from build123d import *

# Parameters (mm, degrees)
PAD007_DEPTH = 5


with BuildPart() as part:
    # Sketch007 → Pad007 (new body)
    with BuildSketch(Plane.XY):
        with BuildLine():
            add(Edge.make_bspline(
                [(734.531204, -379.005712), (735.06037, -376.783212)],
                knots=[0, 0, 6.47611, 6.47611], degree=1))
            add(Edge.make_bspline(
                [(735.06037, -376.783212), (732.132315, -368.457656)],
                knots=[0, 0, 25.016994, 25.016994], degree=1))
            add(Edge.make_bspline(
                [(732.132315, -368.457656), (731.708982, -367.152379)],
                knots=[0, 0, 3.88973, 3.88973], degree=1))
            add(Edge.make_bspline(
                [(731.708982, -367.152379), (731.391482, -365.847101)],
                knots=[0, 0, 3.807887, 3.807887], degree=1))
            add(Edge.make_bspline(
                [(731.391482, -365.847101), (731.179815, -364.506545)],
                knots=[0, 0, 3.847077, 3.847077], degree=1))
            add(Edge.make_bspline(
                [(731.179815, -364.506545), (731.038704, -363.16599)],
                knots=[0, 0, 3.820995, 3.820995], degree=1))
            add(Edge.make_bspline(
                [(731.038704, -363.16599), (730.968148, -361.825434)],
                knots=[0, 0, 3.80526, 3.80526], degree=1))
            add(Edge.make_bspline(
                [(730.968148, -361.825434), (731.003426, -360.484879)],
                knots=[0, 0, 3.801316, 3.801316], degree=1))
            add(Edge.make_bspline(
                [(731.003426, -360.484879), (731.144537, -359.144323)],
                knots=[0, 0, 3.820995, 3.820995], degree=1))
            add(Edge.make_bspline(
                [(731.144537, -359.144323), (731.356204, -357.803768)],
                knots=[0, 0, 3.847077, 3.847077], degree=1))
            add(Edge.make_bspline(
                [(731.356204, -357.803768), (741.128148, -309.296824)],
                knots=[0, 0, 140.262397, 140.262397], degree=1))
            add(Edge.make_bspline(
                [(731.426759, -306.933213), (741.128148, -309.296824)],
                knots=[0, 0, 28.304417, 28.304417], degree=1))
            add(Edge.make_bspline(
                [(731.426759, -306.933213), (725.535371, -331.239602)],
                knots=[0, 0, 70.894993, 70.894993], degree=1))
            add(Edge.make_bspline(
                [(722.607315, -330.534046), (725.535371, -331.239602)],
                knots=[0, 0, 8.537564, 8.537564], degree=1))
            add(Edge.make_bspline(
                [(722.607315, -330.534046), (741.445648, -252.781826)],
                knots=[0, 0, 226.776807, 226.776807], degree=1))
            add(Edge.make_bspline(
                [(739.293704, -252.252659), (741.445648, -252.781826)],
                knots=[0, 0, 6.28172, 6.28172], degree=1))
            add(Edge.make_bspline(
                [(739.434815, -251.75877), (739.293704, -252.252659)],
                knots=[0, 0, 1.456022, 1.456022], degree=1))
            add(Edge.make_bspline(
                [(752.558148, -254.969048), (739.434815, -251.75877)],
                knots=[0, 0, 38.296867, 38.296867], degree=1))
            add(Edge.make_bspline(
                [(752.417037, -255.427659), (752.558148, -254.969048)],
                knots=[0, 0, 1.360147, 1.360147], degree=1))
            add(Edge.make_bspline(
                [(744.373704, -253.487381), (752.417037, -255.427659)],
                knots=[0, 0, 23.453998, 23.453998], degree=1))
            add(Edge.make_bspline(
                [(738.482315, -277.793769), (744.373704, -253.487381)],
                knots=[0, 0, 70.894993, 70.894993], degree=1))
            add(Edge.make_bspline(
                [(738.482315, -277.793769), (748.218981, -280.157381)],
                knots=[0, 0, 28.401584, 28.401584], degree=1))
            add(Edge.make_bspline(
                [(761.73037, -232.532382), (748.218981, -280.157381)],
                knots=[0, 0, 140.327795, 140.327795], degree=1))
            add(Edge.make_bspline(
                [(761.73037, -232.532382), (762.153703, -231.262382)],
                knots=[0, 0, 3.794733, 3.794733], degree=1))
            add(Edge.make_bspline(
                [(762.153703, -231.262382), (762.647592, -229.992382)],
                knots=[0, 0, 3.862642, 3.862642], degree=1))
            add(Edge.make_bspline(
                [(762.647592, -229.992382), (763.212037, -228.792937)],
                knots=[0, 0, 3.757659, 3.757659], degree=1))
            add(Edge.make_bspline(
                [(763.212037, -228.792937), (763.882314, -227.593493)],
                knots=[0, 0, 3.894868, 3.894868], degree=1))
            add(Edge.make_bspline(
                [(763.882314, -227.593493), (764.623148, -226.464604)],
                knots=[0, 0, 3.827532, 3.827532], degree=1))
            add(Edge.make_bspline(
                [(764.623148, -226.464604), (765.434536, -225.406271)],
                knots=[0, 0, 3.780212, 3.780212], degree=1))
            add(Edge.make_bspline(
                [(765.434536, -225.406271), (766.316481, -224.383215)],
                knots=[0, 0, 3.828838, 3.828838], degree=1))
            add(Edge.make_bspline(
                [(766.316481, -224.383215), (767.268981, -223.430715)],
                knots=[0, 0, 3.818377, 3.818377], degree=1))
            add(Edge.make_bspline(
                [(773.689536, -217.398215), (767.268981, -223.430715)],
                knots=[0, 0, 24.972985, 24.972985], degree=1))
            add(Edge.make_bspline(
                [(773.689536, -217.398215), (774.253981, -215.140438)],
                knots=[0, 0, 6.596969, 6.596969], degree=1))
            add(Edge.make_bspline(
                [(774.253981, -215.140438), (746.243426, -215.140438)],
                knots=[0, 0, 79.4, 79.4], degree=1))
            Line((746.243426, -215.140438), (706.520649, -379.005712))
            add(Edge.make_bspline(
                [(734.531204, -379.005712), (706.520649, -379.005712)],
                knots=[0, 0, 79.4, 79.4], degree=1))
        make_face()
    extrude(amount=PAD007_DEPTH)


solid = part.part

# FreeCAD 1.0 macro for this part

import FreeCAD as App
import Part
import Sketcher

doc = App.newDocument("Part")
body = doc.addObject("PartDesign::Body", "Body")

# Sketch on XY plane
sketch1 = body.newObject("Sketcher::SketchObject", "Sketch")
sketch1.AttachmentSupport = (doc.getObject("XY_Plane"), [""])
sketch1.MapMode = "FlatFace"
sketch1.addGeometry(Part.BSplineCurve([App.Vector(734.531204, -379.005712, 0), App.Vector(735.06037, -376.783212, 0)], [2, 2], [0, 6.47611], False, 1, [1, 1], False), False)
sketch1.addGeometry(Part.BSplineCurve([App.Vector(735.06037, -376.783212, 0), App.Vector(732.132315, -368.457656, 0)], [2, 2], [0, 25.016994], False, 1, [1, 1], False), False)
sketch1.addGeometry(Part.BSplineCurve([App.Vector(732.132315, -368.457656, 0), App.Vector(731.708982, -367.152379, 0)], [2, 2], [0, 3.88973], False, 1, [1, 1], False), False)
sketch1.addGeometry(Part.BSplineCurve([App.Vector(731.708982, -367.152379, 0), App.Vector(731.391482, -365.847101, 0)], [2, 2], [0, 3.807887], False, 1, [1, 1], False), False)
sketch1.addGeometry(Part.BSplineCurve([App.Vector(731.391482, -365.847101, 0), App.Vector(731.179815, -364.506545, 0)], [2, 2], [0, 3.847077], False, 1, [1, 1], False), False)
sketch1.addGeometry(Part.BSplineCurve([App.Vector(731.179815, -364.506545, 0), App.Vector(731.038704, -363.16599, 0)], [2, 2], [0, 3.820995], False, 1, [1, 1], False), False)
sketch1.addGeometry(Part.BSplineCurve([App.Vector(731.038704, -363.16599, 0), App.Vector(730.968148, -361.825434, 0)], [2, 2], [0, 3.80526], False, 1, [1, 1], False), False)
sketch1.addGeometry(Part.BSplineCurve([App.Vector(730.968148, -361.825434, 0), App.Vector(731.003426, -360.484879, 0)], [2, 2], [0, 3.801316], False, 1, [1, 1], False), False)
sketch1.addGeometry(Part.BSplineCurve([App.Vector(731.003426, -360.484879, 0), App.Vector(731.144537, -359.144323, 0)], [2, 2], [0, 3.820995], False, 1, [1, 1], False), False)
sketch1.addGeometry(Part.BSplineCurve([App.Vector(731.144537, -359.144323, 0), App.Vector(731.356204, -357.803768, 0)], [2, 2], [0, 3.847077], False, 1, [1, 1], False), False)
sketch1.addGeometry(Part.BSplineCurve([App.Vector(731.356204, -357.803768, 0), App.Vector(741.128148, -309.296824, 0)], [2, 2], [0, 140.262397], False, 1, [1, 1], False), False)
sketch1.addGeometry(Part.BSplineCurve([App.Vector(731.426759, -306.933213, 0), App.Vector(741.128148, -309.296824, 0)], [2, 2], [0, 28.304417], False, 1, [1, 1], False), False)
sketch1.addGeometry(Part.BSplineCurve([App.Vector(731.426759, -306.933213, 0), App.Vector(725.535371, -331.239602, 0)], [2, 2], [0, 70.894993], False, 1, [1, 1], False), False)
sketch1.addGeometry(Part.BSplineCurve([App.Vector(722.607315, -330.534046, 0), App.Vector(725.535371, -331.239602, 0)], [2, 2], [0, 8.537564], False, 1, [1, 1], False), False)
sketch1.addGeometry(Part.BSplineCurve([App.Vector(722.607315, -330.534046, 0), App.Vector(741.445648, -252.781826, 0)], [2, 2], [0, 226.776807], False, 1, [1, 1], False), False)
sketch1.addGeometry(Part.BSplineCurve([App.Vector(739.293704, -252.252659, 0), App.Vector(741.445648, -252.781826, 0)], [2, 2], [0, 6.28172], False, 1, [1, 1], False), False)
sketch1.addGeometry(Part.BSplineCurve([App.Vector(739.434815, -251.75877, 0), App.Vector(739.293704, -252.252659, 0)], [2, 2], [0, 1.456022], False, 1, [1, 1], False), False)
sketch1.addGeometry(Part.BSplineCurve([App.Vector(752.558148, -254.969048, 0), App.Vector(739.434815, -251.75877, 0)], [2, 2], [0, 38.296867], False, 1, [1, 1], False), False)
sketch1.addGeometry(Part.BSplineCurve([App.Vector(752.417037, -255.427659, 0), App.Vector(752.558148, -254.969048, 0)], [2, 2], [0, 1.360147], False, 1, [1, 1], False), False)
sketch1.addGeometry(Part.BSplineCurve([App.Vector(744.373704, -253.487381, 0), App.Vector(752.417037, -255.427659, 0)], [2, 2], [0, 23.453998], False, 1, [1, 1], False), False)
sketch1.addGeometry(Part.BSplineCurve([App.Vector(738.482315, -277.793769, 0), App.Vector(744.373704, -253.487381, 0)], [2, 2], [0, 70.894993], False, 1, [1, 1], False), False)
sketch1.addGeometry(Part.BSplineCurve([App.Vector(738.482315, -277.793769, 0), App.Vector(748.218981, -280.157381, 0)], [2, 2], [0, 28.401584], False, 1, [1, 1], False), False)
sketch1.addGeometry(Part.BSplineCurve([App.Vector(761.73037, -232.532382, 0), App.Vector(748.218981, -280.157381, 0)], [2, 2], [0, 140.327795], False, 1, [1, 1], False), False)
sketch1.addGeometry(Part.BSplineCurve([App.Vector(761.73037, -232.532382, 0), App.Vector(762.153703, -231.262382, 0)], [2, 2], [0, 3.794733], False, 1, [1, 1], False), False)
sketch1.addGeometry(Part.BSplineCurve([App.Vector(762.153703, -231.262382, 0), App.Vector(762.647592, -229.992382, 0)], [2, 2], [0, 3.862642], False, 1, [1, 1], False), False)
sketch1.addGeometry(Part.BSplineCurve([App.Vector(762.647592, -229.992382, 0), App.Vector(763.212037, -228.792937, 0)], [2, 2], [0, 3.757659], False, 1, [1, 1], False), False)
sketch1.addGeometry(Part.BSplineCurve([App.Vector(763.212037, -228.792937, 0), App.Vector(763.882314, -227.593493, 0)], [2, 2], [0, 3.894868], False, 1, [1, 1], False), False)
sketch1.addGeometry(Part.BSplineCurve([App.Vector(763.882314, -227.593493, 0), App.Vector(764.623148, -226.464604, 0)], [2, 2], [0, 3.827532], False, 1, [1, 1], False), False)
sketch1.addGeometry(Part.BSplineCurve([App.Vector(764.623148, -226.464604, 0), App.Vector(765.434536, -225.406271, 0)], [2, 2], [0, 3.780212], False, 1, [1, 1], False), False)
sketch1.addGeometry(Part.BSplineCurve([App.Vector(765.434536, -225.406271, 0), App.Vector(766.316481, -224.383215, 0)], [2, 2], [0, 3.828838], False, 1, [1, 1], False), False)
sketch1.addGeometry(Part.BSplineCurve([App.Vector(766.316481, -224.383215, 0), App.Vector(767.268981, -223.430715, 0)], [2, 2], [0, 3.818377], False, 1, [1, 1], False), False)
sketch1.addGeometry(Part.BSplineCurve([App.Vector(773.689536, -217.398215, 0), App.Vector(767.268981, -223.430715, 0)], [2, 2], [0, 24.972985], False, 1, [1, 1], False), False)
sketch1.addGeometry(Part.BSplineCurve([App.Vector(773.689536, -217.398215, 0), App.Vector(774.253981, -215.140438, 0)], [2, 2], [0, 6.596969], False, 1, [1, 1], False), False)
sketch1.addGeometry(Part.BSplineCurve([App.Vector(774.253981, -215.140438, 0), App.Vector(746.243426, -215.140438, 0)], [2, 2], [0, 79.4], False, 1, [1, 1], False), False)
sketch1.addGeometry(Part.LineSegment(App.Vector(746.243426, -215.140438, 0), App.Vector(706.520649, -379.005712, 0)), False)
sketch1.addGeometry(Part.BSplineCurve([App.Vector(734.531204, -379.005712, 0), App.Vector(706.520649, -379.005712, 0)], [2, 2], [0, 79.4], False, 1, [1, 1], False), False)
sketch1.addConstraint(Sketcher.Constraint("Block", 0))
sketch1.addConstraint(Sketcher.Constraint("Block", 1))
sketch1.addConstraint(Sketcher.Constraint("Block", 2))
sketch1.addConstraint(Sketcher.Constraint("Block", 3))
sketch1.addConstraint(Sketcher.Constraint("Block", 4))
sketch1.addConstraint(Sketcher.Constraint("Block", 5))
sketch1.addConstraint(Sketcher.Constraint("Block", 6))
sketch1.addConstraint(Sketcher.Constraint("Block", 7))
sketch1.addConstraint(Sketcher.Constraint("Block", 8))
sketch1.addConstraint(Sketcher.Constraint("Block", 9))
sketch1.addConstraint(Sketcher.Constraint("Block", 10))
sketch1.addConstraint(Sketcher.Constraint("Block", 11))
sketch1.addConstraint(Sketcher.Constraint("Block", 12))
sketch1.addConstraint(Sketcher.Constraint("Block", 13))
sketch1.addConstraint(Sketcher.Constraint("Block", 14))
sketch1.addConstraint(Sketcher.Constraint("Block", 15))
sketch1.addConstraint(Sketcher.Constraint("Block", 16))
sketch1.addConstraint(Sketcher.Constraint("Block", 17))
sketch1.addConstraint(Sketcher.Constraint("Block", 18))
sketch1.addConstraint(Sketcher.Constraint("Block", 19))
sketch1.addConstraint(Sketcher.Constraint("Block", 20))
sketch1.addConstraint(Sketcher.Constraint("Block", 21))
sketch1.addConstraint(Sketcher.Constraint("Block", 22))
sketch1.addConstraint(Sketcher.Constraint("Block", 23))
sketch1.addConstraint(Sketcher.Constraint("Block", 24))
sketch1.addConstraint(Sketcher.Constraint("Block", 25))
sketch1.addConstraint(Sketcher.Constraint("Block", 26))
sketch1.addConstraint(Sketcher.Constraint("Block", 27))
sketch1.addConstraint(Sketcher.Constraint("Block", 28))
sketch1.addConstraint(Sketcher.Constraint("Block", 29))
sketch1.addConstraint(Sketcher.Constraint("Block", 30))
sketch1.addConstraint(Sketcher.Constraint("Block", 31))
sketch1.addConstraint(Sketcher.Constraint("Block", 32))
sketch1.addConstraint(Sketcher.Constraint("Block", 33))
sketch1.addConstraint(Sketcher.Constraint("Block", 35))
sketch1.addConstraint(Sketcher.Constraint("Coincident", 33, 2, 34, 1))
sketch1.addConstraint(Sketcher.Constraint("Coincident", 34, 2, 35, 2))
pad1 = body.newObject("PartDesign::Pad", "Pad")
pad1.Profile = sketch1
pad1.Length = 5

doc.recompute()
